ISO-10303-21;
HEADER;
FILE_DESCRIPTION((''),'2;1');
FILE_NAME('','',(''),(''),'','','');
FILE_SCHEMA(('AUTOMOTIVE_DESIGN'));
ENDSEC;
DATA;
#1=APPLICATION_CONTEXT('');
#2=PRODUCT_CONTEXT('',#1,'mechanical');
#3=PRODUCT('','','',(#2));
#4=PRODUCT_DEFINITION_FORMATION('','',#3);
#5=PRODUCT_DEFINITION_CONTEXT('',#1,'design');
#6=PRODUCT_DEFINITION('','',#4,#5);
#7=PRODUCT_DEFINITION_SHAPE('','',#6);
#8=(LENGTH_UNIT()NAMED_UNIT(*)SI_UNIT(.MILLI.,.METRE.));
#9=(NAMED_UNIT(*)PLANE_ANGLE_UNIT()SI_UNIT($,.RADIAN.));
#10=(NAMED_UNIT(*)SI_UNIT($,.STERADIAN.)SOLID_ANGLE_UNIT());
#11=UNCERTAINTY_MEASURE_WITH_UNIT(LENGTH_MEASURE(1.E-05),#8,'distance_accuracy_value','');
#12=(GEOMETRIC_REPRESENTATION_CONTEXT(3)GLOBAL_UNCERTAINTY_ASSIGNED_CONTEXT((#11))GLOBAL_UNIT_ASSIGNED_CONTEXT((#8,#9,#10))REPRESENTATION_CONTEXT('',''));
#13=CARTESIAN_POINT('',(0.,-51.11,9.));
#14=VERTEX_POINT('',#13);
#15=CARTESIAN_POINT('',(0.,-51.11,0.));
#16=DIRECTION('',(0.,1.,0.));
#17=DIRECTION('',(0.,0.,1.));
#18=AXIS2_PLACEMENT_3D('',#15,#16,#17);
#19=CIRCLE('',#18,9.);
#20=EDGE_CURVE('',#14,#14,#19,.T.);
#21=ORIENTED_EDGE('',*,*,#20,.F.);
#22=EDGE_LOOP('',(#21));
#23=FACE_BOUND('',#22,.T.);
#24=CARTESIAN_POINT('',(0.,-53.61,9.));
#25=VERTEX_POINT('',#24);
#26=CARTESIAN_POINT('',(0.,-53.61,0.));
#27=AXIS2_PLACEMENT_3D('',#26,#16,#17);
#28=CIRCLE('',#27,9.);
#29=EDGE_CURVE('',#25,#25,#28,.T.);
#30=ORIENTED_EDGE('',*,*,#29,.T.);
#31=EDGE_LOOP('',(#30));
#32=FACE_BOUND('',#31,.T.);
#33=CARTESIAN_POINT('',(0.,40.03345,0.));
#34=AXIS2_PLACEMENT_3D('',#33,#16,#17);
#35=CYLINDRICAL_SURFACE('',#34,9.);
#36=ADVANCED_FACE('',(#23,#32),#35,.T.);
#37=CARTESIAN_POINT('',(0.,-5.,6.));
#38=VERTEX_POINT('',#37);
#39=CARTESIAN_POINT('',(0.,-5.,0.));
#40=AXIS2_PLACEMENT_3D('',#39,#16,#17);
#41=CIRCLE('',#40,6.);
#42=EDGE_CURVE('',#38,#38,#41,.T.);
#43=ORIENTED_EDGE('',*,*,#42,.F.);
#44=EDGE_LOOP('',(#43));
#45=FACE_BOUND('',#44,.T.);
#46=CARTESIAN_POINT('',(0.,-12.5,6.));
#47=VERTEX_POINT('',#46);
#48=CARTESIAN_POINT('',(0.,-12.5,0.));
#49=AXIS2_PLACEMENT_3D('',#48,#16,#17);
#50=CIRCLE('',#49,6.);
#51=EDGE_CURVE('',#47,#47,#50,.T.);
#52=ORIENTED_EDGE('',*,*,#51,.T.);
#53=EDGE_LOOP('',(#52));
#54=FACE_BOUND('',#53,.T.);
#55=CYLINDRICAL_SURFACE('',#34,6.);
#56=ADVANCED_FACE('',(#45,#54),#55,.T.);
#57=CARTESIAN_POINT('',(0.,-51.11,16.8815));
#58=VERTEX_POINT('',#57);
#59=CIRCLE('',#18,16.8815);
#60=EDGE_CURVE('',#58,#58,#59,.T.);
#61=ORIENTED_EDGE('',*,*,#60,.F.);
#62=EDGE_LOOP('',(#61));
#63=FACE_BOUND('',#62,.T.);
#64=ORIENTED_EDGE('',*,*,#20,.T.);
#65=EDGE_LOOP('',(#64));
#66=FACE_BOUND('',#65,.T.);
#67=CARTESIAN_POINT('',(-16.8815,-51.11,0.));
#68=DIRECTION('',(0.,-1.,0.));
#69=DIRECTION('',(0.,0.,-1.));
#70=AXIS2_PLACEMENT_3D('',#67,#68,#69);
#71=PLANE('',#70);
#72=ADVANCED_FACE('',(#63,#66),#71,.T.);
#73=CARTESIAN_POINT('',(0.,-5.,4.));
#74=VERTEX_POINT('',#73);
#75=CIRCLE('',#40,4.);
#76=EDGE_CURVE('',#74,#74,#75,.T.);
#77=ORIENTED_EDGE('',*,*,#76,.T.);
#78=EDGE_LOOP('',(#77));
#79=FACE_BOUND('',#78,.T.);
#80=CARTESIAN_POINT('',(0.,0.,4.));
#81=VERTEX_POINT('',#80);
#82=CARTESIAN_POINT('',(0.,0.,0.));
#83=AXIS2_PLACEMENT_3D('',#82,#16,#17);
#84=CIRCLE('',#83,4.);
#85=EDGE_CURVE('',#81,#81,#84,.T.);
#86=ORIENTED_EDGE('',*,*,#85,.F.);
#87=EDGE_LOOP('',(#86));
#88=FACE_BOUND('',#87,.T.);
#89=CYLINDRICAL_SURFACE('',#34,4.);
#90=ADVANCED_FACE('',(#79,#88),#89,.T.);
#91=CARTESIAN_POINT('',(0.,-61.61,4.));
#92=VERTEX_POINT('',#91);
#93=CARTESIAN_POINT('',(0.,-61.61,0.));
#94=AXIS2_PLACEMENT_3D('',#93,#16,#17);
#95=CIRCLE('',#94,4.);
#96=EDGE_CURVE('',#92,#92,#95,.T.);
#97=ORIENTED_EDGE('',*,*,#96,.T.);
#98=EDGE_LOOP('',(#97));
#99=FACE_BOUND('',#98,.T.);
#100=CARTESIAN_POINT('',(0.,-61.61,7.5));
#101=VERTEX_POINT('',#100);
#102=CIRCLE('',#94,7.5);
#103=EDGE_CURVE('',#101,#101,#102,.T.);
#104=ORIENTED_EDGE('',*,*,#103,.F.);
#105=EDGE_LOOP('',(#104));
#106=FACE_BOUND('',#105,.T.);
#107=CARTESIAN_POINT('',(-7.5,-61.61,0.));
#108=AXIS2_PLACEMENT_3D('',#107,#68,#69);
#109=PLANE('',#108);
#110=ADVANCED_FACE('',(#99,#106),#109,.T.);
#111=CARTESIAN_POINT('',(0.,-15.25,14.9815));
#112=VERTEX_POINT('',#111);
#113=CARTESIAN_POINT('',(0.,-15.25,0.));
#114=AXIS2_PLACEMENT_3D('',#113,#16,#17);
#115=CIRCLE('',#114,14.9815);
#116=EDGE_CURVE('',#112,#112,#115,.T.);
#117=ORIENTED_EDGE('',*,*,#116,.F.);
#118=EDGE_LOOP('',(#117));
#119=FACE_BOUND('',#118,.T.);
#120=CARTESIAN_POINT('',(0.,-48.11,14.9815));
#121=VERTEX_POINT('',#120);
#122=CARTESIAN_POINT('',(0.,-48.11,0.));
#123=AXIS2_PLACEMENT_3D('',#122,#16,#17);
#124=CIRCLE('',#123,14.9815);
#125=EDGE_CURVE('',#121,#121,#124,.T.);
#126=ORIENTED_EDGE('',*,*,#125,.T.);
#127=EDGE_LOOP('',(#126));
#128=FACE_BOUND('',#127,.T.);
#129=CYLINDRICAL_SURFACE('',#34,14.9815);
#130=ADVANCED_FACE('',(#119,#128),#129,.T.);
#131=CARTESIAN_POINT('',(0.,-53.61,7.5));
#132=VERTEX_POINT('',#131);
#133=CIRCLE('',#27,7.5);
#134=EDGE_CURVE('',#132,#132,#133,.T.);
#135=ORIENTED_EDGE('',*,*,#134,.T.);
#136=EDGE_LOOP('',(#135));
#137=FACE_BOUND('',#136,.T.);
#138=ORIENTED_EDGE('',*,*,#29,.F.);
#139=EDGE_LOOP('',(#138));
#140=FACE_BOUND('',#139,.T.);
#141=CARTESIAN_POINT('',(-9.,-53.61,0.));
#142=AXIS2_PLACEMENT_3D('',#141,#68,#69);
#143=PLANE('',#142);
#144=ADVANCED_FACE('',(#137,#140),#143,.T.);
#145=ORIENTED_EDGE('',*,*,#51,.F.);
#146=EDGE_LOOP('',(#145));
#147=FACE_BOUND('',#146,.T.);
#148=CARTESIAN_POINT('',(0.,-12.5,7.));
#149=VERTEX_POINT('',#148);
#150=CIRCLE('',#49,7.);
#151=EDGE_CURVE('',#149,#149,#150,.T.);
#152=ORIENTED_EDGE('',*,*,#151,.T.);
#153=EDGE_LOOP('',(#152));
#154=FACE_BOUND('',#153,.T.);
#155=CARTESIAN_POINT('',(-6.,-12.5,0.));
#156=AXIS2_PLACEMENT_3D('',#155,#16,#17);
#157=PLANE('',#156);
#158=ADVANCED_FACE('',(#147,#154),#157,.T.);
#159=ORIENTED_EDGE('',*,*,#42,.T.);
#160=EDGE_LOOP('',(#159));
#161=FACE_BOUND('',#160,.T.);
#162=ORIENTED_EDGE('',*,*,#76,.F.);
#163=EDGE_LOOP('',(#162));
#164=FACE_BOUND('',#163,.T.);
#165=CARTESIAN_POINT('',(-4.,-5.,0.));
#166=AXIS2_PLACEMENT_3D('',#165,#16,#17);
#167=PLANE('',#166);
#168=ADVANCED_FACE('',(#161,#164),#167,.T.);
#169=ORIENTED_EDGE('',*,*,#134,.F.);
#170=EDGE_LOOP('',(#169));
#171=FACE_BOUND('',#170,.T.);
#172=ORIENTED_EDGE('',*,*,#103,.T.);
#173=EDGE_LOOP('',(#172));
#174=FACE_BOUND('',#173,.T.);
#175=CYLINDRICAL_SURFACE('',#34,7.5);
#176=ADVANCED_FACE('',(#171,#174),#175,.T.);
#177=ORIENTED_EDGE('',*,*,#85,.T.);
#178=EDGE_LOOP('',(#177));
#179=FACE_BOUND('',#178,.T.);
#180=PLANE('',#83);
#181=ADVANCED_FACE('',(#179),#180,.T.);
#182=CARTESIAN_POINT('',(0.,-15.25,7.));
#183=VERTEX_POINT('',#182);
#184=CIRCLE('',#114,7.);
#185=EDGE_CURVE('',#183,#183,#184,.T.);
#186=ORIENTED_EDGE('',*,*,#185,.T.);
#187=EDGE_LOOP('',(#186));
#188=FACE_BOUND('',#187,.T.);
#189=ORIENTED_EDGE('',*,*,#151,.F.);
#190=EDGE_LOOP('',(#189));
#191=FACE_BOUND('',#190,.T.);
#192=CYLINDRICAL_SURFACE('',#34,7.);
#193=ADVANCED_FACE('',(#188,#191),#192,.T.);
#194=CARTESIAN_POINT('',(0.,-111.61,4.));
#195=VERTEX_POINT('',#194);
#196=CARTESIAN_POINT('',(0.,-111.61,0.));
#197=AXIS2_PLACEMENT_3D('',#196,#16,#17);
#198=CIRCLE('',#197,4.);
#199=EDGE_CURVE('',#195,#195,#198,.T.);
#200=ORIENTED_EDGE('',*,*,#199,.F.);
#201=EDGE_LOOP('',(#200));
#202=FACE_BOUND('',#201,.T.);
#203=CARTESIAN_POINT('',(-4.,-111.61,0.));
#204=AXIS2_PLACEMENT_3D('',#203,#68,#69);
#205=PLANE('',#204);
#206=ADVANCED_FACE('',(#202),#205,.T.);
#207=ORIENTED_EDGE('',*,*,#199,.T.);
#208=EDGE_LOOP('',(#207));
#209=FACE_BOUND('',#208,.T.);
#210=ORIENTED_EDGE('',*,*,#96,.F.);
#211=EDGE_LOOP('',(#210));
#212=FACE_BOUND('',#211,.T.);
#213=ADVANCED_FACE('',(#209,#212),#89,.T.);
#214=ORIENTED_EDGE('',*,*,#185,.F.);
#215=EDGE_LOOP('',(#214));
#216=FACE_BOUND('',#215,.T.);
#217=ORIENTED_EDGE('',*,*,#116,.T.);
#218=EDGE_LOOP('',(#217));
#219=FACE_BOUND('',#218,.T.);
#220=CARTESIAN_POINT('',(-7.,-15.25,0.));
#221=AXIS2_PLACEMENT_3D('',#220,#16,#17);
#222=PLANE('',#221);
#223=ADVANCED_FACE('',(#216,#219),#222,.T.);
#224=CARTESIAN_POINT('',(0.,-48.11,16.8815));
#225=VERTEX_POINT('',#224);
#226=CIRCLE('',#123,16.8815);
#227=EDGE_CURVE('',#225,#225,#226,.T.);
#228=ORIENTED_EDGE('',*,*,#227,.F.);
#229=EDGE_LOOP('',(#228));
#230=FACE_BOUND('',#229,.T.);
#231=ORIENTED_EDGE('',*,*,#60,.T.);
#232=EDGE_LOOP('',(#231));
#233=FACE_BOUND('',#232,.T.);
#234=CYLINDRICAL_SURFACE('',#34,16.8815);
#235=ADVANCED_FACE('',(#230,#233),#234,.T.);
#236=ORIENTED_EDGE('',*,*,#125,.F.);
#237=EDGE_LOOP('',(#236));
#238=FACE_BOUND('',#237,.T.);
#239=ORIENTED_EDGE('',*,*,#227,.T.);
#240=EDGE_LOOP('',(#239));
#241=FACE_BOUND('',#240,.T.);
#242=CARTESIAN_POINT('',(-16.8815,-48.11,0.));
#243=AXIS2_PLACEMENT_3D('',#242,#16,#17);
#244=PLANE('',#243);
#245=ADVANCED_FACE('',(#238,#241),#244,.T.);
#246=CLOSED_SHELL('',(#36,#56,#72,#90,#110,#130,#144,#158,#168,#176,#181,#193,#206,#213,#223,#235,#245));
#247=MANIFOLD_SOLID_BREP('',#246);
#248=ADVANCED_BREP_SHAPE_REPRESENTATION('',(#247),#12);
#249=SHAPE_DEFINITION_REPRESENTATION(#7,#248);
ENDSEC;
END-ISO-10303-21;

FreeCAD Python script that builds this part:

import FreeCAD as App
import Part
import Sketcher


def add_polygon(sketch, points):
    """Adds a closed chain of lines whose ends are joined by coincident constraints."""
    first, n = sketch.GeometryCount, len(points)
    for a, b in zip(points, points[1:] + points[:1]):
        sketch.addGeometry(Part.LineSegment(App.Vector(*a, 0), App.Vector(*b, 0)), False)
    for i in range(n):
        sketch.addConstraint(Sketcher.Constraint("Coincident", first + i, 2, first + (i + 1) % n, 1))

doc = App.newDocument("Part")
params = doc.addObject("Spreadsheet::Sheet", "Params")
for row, (alias, value) in enumerate([
    ("sketch1_width", "4 mm"),
    ("sketch1_width2", "2 mm"),
    ("sketch1_width3", "1 mm"),
    ("sketch1_height", "5 mm"),
    ("sketch1_height2", "3 mm"),
    ("revolution_angle", "360 deg"),
], start=1):
    params.set(f"A{row}", alias)
    params.set(f"B{row}", "=" + value)
    params.setAlias(f"B{row}", alias)

body = doc.addObject("PartDesign::Body", "Body")

sketch1 = body.newObject("Sketcher::SketchObject", "Sketch")
sketch1.AttachmentSupport = (doc.getObject("XY_Plane"), [""])
sketch1.MapMode = "FlatFace"
add_polygon(sketch1, [(0, 0), (-4, 0), (-4, -5), (-6, -5), (-6, -12.5), (-7, -12.5), (-7, -15.2), (-15, -15.2), (-15, -48.1), (-16.9, -48.1), (-16.9, -51.1), (-9, -51.1), (-9, -53.6), (-7.5, -53.6), (-7.5, -61.6), (-4, -61.6), (-4, -111.6), (0, -111.6)])
sketch1.addConstraint(Sketcher.Constraint("Horizontal", 0))
sketch1.addConstraint(Sketcher.Constraint("Vertical", 1))
sketch1.addConstraint(Sketcher.Constraint("Horizontal", 2))
sketch1.addConstraint(Sketcher.Constraint("Vertical", 3))
sketch1.addConstraint(Sketcher.Constraint("Horizontal", 4))
sketch1.addConstraint(Sketcher.Constraint("Vertical", 5))
sketch1.addConstraint(Sketcher.Constraint("Horizontal", 6))
sketch1.addConstraint(Sketcher.Constraint("Vertical", 7))
sketch1.addConstraint(Sketcher.Constraint("Horizontal", 8))
sketch1.addConstraint(Sketcher.Constraint("Vertical", 9))
sketch1.addConstraint(Sketcher.Constraint("Horizontal", 10))
sketch1.addConstraint(Sketcher.Constraint("Vertical", 11))
sketch1.addConstraint(Sketcher.Constraint("Horizontal", 12))
sketch1.addConstraint(Sketcher.Constraint("Vertical", 13))
sketch1.addConstraint(Sketcher.Constraint("Horizontal", 14))
sketch1.addConstraint(Sketcher.Constraint("Vertical", 15))
sketch1.addConstraint(Sketcher.Constraint("Horizontal", 16))
sketch1.addConstraint(Sketcher.Constraint("Vertical", 17))
sketch1.addConstraint(Sketcher.Constraint("Coincident", 17, 2, -1, 1))
sketch1.addConstraint(Sketcher.Constraint("Vertical", 1, 2, 14, 2))
sketch1.addConstraint(Sketcher.Constraint("DistanceX", 0, 2, 0, 1, 4.0))
sketch1.addConstraint(Sketcher.Constraint("DistanceX", 2, 2, 2, 1, 2.0))
sketch1.addConstraint(Sketcher.Constraint("DistanceX", 4, 2, 4, 1, 1.0))
sketch1.addConstraint(Sketcher.Constraint("DistanceY", 1, 2, 1, 1, 5.0))
sketch1.addConstraint(Sketcher.Constraint("DistanceY", 9, 2, 9, 1, 3.0))
sketch1.addConstraint(Sketcher.Constraint("DistanceY", 13, 2, 13, 1, 8.0))
sketch1.addConstraint(Sketcher.Constraint("DistanceY", 15, 2, 15, 1, 50.0))
sketch1.addConstraint(Sketcher.Constraint("DistanceX", 8, 2, 8, 1, 1.9))
sketch1.addConstraint(Sketcher.Constraint("DistanceX", 12, 1, 12, 2, 1.5))
sketch1.addConstraint(Sketcher.Constraint("DistanceX", 14, 1, 14, 2, 3.5))
sketch1.addConstraint(Sketcher.Constraint("DistanceY", 3, 2, 3, 1, 7.5))
sketch1.addConstraint(Sketcher.Constraint("DistanceY", 11, 2, 11, 1, 2.5))
sketch1.addConstraint(Sketcher.Constraint("DistanceY", 5, 2, 5, 1, 2.75))
sketch1.addConstraint(Sketcher.Constraint("DistanceY", 7, 2, 7, 1, 32.86))
sketch1.addConstraint(Sketcher.Constraint("DistanceX", 6, 2, 6, 1, 7.9815))
sketch1.setExpression("Constraints[38]", "Params.sketch1_width")
sketch1.setExpression("Constraints[39]", "Params.sketch1_width2")
sketch1.setExpression("Constraints[40]", "Params.sketch1_width3")
sketch1.setExpression("Constraints[41]", "Params.sketch1_height")
sketch1.setExpression("Constraints[42]", "Params.sketch1_height2")
revolution = body.newObject("PartDesign::Revolution", "Revolution")
revolution.Profile = sketch1
revolution.ReferenceAxis = (sketch1, ["V_Axis"])
revolution.setExpression("Angle", "Params.revolution_angle")

doc.recompute()
